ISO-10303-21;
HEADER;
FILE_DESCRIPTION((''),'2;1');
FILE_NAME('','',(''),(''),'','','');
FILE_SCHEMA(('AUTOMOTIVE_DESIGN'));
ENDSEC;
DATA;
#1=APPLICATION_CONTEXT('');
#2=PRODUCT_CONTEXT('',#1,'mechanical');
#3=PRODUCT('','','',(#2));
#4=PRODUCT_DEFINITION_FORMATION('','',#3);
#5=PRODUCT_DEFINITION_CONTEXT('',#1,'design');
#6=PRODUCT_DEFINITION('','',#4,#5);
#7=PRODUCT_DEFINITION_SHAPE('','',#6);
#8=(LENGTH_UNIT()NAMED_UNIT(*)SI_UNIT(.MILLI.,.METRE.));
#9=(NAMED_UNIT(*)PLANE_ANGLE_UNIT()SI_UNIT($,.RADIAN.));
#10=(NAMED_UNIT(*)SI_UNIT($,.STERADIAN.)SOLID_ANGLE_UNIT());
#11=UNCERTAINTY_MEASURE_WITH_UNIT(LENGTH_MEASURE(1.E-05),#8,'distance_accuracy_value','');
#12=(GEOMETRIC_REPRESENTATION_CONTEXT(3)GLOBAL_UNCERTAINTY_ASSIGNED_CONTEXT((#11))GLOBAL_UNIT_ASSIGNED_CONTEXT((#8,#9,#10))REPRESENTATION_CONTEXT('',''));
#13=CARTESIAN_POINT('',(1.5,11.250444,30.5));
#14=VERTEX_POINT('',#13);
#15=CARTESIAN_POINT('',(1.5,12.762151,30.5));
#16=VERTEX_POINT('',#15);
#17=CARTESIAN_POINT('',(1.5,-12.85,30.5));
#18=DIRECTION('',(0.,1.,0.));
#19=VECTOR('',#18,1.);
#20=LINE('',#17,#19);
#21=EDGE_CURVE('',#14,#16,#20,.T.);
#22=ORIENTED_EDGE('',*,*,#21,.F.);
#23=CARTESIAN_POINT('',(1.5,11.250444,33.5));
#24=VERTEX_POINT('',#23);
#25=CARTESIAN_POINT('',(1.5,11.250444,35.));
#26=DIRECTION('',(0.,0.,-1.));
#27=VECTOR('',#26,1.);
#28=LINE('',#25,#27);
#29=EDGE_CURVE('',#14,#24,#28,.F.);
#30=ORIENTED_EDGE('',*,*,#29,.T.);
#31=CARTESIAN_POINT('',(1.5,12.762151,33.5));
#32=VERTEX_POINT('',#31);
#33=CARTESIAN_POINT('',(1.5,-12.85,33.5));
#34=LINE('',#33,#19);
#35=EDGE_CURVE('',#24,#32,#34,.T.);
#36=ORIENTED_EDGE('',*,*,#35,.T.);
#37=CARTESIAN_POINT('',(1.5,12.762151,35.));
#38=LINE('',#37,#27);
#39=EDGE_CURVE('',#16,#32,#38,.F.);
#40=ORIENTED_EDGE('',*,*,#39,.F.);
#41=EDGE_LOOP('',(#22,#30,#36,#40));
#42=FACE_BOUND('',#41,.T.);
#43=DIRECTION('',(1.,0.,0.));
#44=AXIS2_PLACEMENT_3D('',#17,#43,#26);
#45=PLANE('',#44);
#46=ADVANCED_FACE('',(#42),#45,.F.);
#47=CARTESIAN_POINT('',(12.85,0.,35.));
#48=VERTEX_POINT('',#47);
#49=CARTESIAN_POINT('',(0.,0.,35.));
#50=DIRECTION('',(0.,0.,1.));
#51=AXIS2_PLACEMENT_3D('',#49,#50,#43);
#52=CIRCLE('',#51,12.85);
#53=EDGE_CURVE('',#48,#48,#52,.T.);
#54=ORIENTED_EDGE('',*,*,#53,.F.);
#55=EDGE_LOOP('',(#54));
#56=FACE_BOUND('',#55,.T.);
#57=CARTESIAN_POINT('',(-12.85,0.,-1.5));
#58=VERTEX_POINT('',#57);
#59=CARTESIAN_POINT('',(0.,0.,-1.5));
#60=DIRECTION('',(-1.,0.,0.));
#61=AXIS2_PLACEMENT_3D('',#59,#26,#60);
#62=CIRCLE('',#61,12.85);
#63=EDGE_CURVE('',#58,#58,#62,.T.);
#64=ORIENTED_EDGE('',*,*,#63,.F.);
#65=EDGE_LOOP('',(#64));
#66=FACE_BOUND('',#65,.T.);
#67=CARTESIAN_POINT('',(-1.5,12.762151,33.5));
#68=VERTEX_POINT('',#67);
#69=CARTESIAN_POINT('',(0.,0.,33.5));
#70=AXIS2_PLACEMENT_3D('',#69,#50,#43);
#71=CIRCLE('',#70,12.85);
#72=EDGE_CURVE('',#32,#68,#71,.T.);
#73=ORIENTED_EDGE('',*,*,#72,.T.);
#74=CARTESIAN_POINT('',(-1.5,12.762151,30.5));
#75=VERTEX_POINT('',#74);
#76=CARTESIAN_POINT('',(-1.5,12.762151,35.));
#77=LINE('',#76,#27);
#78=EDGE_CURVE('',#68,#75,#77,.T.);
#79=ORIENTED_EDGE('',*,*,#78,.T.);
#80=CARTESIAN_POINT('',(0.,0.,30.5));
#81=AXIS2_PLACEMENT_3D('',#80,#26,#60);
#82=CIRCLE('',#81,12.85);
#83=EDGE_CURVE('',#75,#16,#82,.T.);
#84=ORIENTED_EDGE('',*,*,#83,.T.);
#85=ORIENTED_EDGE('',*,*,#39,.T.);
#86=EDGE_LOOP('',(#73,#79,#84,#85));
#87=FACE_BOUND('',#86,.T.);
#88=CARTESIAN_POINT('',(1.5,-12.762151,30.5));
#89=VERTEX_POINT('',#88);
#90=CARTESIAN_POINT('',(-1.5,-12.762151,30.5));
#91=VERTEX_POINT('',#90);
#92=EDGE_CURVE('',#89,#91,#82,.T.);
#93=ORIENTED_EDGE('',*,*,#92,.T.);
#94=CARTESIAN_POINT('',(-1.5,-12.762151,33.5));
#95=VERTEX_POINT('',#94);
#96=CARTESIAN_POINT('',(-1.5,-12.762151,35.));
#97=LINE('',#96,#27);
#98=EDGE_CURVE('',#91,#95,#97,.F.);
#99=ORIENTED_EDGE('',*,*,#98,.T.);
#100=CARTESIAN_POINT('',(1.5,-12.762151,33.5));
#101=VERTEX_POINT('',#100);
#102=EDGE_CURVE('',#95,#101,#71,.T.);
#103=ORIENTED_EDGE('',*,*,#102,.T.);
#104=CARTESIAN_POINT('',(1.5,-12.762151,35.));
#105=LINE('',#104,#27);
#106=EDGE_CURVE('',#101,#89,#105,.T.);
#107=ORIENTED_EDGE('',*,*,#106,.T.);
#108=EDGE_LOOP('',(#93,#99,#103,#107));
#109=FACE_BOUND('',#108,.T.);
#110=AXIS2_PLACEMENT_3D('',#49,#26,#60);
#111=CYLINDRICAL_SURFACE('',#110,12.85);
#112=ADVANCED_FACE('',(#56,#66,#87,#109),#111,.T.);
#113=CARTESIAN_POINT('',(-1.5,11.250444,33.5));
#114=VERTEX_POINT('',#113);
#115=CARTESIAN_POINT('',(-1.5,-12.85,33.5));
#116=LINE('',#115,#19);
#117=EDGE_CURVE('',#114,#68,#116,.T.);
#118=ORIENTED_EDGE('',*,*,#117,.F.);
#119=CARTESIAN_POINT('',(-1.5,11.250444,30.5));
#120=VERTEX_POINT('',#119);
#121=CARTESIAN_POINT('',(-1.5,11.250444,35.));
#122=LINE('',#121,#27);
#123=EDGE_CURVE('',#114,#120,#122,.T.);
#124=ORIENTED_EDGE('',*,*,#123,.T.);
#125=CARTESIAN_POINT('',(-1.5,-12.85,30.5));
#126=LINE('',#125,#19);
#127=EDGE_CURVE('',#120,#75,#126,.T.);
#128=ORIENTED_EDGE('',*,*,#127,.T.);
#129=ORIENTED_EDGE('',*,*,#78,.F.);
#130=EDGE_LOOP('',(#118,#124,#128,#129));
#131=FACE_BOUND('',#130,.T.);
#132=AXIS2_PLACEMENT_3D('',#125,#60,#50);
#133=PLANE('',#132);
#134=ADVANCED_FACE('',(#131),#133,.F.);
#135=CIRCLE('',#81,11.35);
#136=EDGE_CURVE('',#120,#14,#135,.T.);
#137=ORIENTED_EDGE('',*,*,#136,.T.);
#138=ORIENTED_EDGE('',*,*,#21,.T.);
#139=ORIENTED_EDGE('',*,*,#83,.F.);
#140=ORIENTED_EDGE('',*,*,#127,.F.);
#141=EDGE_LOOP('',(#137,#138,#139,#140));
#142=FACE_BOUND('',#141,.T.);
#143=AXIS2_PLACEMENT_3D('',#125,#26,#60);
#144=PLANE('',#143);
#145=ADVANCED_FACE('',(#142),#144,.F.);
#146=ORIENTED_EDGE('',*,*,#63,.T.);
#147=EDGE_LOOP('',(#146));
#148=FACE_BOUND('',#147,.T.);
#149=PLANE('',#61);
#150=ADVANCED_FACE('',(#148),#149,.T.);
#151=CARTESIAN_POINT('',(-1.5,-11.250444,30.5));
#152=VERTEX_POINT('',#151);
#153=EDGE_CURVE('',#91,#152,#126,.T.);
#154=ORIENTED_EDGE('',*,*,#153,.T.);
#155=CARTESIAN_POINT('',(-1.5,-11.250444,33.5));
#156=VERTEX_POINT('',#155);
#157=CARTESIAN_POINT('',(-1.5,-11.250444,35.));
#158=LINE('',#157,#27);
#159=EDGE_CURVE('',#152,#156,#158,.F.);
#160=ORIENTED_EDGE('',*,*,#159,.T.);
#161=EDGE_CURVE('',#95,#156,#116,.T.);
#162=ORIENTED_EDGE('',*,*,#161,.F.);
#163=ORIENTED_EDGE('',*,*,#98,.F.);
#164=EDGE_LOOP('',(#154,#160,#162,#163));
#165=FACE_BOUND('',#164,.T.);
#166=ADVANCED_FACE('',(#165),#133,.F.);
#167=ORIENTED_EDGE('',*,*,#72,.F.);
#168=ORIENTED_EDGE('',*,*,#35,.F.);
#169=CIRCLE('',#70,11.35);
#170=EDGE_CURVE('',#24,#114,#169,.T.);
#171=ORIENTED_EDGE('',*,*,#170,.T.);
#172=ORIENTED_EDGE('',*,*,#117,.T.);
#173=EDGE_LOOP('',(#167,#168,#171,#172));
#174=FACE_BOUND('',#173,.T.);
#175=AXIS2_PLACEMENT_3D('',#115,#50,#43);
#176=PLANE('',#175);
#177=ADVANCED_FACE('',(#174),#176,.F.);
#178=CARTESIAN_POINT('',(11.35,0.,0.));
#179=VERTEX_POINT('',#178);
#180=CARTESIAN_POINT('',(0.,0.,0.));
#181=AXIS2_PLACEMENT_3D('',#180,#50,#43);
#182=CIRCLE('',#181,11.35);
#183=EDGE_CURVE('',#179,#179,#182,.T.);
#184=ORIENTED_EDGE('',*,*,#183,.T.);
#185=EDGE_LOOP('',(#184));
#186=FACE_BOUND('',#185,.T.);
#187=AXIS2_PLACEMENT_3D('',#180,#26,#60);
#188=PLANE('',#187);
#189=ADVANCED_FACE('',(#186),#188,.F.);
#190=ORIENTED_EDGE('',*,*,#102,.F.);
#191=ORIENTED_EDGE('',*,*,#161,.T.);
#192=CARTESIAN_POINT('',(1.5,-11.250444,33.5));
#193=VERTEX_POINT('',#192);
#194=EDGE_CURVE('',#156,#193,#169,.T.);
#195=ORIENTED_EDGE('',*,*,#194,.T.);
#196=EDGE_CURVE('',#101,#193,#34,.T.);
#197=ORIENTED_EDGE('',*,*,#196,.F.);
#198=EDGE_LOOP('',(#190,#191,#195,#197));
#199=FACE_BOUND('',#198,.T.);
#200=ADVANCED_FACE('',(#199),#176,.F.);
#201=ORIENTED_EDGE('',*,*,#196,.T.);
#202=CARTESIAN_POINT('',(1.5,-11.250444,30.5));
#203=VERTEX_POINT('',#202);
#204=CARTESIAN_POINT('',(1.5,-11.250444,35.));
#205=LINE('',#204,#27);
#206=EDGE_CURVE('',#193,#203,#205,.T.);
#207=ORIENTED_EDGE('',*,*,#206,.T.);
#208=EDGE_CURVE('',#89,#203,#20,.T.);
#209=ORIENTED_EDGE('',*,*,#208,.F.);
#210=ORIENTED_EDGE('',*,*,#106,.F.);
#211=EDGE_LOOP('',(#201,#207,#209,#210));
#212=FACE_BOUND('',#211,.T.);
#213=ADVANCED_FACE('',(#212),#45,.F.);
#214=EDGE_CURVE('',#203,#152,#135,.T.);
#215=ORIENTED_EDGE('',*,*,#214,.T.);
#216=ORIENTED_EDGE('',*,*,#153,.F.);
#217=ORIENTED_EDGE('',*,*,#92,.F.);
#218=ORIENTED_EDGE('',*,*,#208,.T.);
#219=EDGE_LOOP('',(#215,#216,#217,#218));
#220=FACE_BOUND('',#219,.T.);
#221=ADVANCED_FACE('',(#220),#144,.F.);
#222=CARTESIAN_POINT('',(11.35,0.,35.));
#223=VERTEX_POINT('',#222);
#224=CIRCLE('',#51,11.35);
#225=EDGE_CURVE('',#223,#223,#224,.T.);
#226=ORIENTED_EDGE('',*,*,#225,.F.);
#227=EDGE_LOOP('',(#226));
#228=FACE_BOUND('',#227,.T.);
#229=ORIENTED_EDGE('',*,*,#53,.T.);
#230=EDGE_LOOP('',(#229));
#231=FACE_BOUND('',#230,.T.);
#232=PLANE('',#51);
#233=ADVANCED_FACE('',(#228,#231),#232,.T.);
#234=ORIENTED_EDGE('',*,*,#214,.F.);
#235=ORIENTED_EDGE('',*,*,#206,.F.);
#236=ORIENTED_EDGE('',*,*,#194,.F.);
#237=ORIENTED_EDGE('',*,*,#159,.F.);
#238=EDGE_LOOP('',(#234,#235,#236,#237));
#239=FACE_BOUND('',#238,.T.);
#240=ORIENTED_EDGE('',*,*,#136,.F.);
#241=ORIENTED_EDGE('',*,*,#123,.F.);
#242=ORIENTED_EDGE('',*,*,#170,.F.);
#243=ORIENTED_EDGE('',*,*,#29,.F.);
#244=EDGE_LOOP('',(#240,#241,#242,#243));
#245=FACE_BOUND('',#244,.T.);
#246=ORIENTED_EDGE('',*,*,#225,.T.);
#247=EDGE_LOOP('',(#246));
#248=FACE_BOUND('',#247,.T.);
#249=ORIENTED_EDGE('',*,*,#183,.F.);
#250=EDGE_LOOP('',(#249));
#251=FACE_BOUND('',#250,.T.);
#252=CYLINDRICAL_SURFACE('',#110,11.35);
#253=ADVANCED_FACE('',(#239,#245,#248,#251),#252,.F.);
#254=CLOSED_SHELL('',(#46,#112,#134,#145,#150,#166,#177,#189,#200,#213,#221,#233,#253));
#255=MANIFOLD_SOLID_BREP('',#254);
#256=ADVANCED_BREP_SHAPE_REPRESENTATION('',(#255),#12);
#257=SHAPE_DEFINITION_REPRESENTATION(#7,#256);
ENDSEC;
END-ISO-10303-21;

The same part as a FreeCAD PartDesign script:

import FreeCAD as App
import Part
import Sketcher
from FreeCAD import Vector


def add_polygon(sketch, points):
    """Adds a closed chain of lines whose ends are joined by coincident constraints."""
    first, n = sketch.GeometryCount, len(points)
    for a, b in zip(points, points[1:] + points[:1]):
        sketch.addGeometry(Part.LineSegment(App.Vector(*a, 0), App.Vector(*b, 0)), False)
    for i in range(n):
        sketch.addConstraint(Sketcher.Constraint("Coincident", first + i, 2, first + (i + 1) % n, 1))

doc = App.newDocument("Part")
params = doc.addObject("Spreadsheet::Sheet", "Params")
for row, (alias, value) in enumerate([
    ("sketch1_diameter", "25.7 mm"),
    ("sketch1_diameter2", "22.7 mm"),
    ("pad1_length", "35 mm"),
    ("sketch2_diameter", "25.7 mm"),
    ("pad2_length", "1.5 mm"),
    ("sketch3_width", "3 mm"),
], start=1):
    params.set(f"A{row}", alias)
    params.set(f"B{row}", "=" + value)
    params.setAlias(f"B{row}", alias)

body = doc.addObject("PartDesign::Body", "Body")

# Sketch on XY plane
sketch1 = body.newObject("Sketcher::SketchObject", "Sketch")
sketch1.AttachmentSupport = (doc.getObject("XY_Plane"), [""])
sketch1.MapMode = "FlatFace"
sketch1.addGeometry(Part.Circle(Vector(0, 0, 0), Vector(0, 0, 1), 12.85), False)
sketch1.addGeometry(Part.Circle(Vector(0, 0, 0), Vector(0, 0, 1), 11.35), False)
sketch1.addConstraint(Sketcher.Constraint("Coincident", 0, 3, -1, 1))
sketch1.addConstraint(Sketcher.Constraint("Coincident", 1, 3, -1, 1))
sketch1.addConstraint(Sketcher.Constraint("Diameter", 0, 25.7))
sketch1.addConstraint(Sketcher.Constraint("Diameter", 1, 22.7))
sketch1.setExpression("Constraints[2]", "Params.sketch1_diameter")
sketch1.setExpression("Constraints[3]", "Params.sketch1_diameter2")
pad1 = body.newObject("PartDesign::Pad", "Pad")
pad1.Profile = sketch1
pad1.setExpression("Length", "Params.pad1_length")

# Sketch on XY plane
sketch2 = body.newObject("Sketcher::SketchObject", "Sketch001")
sketch2.AttachmentSupport = (doc.getObject("XY_Plane"), [""])
sketch2.MapMode = "FlatFace"
sketch2.addGeometry(Part.Circle(Vector(0, 0, 0), Vector(0, 0, 1), 12.85), False)
sketch2.addConstraint(Sketcher.Constraint("Coincident", 0, 3, -1, 1))
sketch2.addConstraint(Sketcher.Constraint("Diameter", 0, 25.7))
sketch2.setExpression("Constraints[1]", "Params.sketch2_diameter")
pad2 = body.newObject("PartDesign::Pad", "Pad001")
pad2.Profile = sketch2
pad2.setExpression("Length", "Params.pad2_length")
pad2.Reversed = True

# Sketch on XZ plane
sketch3 = body.newObject("Sketcher::SketchObject", "Sketch002")
sketch3.AttachmentSupport = (doc.getObject("XZ_Plane"), [""])
sketch3.MapMode = "FlatFace"
add_polygon(sketch3, [(-1.5, 30.5), (-1.5, 33.5), (1.5, 33.5), (1.5, 30.5)])  # lines 0-3
sketch3.addConstraint(Sketcher.Constraint("Vertical", 0))
sketch3.addConstraint(Sketcher.Constraint("Horizontal", 1))
sketch3.addConstraint(Sketcher.Constraint("Vertical", 2))
sketch3.addConstraint(Sketcher.Constraint("Horizontal", 3))
sketch3.addConstraint(Sketcher.Constraint("Equal", 3, 0))
sketch3.addConstraint(Sketcher.Constraint("DistanceX", 1, 1, 1, 2, 3.0))
sketch3.addConstraint(Sketcher.Constraint("DistanceX", 0, 2, -1, 1, 1.5))
sketch3.addConstraint(Sketcher.Constraint("DistanceY", -1, 1, 0, 2, 33.5))
sketch3.setExpression("Constraints[9]", "Params.sketch3_width")
pocket1 = body.newObject("PartDesign::Pocket", "Pocket")
pocket1.Profile = sketch3
pocket1.Type = "ThroughAll"
pocket1.Midplane = True

doc.recompute()
